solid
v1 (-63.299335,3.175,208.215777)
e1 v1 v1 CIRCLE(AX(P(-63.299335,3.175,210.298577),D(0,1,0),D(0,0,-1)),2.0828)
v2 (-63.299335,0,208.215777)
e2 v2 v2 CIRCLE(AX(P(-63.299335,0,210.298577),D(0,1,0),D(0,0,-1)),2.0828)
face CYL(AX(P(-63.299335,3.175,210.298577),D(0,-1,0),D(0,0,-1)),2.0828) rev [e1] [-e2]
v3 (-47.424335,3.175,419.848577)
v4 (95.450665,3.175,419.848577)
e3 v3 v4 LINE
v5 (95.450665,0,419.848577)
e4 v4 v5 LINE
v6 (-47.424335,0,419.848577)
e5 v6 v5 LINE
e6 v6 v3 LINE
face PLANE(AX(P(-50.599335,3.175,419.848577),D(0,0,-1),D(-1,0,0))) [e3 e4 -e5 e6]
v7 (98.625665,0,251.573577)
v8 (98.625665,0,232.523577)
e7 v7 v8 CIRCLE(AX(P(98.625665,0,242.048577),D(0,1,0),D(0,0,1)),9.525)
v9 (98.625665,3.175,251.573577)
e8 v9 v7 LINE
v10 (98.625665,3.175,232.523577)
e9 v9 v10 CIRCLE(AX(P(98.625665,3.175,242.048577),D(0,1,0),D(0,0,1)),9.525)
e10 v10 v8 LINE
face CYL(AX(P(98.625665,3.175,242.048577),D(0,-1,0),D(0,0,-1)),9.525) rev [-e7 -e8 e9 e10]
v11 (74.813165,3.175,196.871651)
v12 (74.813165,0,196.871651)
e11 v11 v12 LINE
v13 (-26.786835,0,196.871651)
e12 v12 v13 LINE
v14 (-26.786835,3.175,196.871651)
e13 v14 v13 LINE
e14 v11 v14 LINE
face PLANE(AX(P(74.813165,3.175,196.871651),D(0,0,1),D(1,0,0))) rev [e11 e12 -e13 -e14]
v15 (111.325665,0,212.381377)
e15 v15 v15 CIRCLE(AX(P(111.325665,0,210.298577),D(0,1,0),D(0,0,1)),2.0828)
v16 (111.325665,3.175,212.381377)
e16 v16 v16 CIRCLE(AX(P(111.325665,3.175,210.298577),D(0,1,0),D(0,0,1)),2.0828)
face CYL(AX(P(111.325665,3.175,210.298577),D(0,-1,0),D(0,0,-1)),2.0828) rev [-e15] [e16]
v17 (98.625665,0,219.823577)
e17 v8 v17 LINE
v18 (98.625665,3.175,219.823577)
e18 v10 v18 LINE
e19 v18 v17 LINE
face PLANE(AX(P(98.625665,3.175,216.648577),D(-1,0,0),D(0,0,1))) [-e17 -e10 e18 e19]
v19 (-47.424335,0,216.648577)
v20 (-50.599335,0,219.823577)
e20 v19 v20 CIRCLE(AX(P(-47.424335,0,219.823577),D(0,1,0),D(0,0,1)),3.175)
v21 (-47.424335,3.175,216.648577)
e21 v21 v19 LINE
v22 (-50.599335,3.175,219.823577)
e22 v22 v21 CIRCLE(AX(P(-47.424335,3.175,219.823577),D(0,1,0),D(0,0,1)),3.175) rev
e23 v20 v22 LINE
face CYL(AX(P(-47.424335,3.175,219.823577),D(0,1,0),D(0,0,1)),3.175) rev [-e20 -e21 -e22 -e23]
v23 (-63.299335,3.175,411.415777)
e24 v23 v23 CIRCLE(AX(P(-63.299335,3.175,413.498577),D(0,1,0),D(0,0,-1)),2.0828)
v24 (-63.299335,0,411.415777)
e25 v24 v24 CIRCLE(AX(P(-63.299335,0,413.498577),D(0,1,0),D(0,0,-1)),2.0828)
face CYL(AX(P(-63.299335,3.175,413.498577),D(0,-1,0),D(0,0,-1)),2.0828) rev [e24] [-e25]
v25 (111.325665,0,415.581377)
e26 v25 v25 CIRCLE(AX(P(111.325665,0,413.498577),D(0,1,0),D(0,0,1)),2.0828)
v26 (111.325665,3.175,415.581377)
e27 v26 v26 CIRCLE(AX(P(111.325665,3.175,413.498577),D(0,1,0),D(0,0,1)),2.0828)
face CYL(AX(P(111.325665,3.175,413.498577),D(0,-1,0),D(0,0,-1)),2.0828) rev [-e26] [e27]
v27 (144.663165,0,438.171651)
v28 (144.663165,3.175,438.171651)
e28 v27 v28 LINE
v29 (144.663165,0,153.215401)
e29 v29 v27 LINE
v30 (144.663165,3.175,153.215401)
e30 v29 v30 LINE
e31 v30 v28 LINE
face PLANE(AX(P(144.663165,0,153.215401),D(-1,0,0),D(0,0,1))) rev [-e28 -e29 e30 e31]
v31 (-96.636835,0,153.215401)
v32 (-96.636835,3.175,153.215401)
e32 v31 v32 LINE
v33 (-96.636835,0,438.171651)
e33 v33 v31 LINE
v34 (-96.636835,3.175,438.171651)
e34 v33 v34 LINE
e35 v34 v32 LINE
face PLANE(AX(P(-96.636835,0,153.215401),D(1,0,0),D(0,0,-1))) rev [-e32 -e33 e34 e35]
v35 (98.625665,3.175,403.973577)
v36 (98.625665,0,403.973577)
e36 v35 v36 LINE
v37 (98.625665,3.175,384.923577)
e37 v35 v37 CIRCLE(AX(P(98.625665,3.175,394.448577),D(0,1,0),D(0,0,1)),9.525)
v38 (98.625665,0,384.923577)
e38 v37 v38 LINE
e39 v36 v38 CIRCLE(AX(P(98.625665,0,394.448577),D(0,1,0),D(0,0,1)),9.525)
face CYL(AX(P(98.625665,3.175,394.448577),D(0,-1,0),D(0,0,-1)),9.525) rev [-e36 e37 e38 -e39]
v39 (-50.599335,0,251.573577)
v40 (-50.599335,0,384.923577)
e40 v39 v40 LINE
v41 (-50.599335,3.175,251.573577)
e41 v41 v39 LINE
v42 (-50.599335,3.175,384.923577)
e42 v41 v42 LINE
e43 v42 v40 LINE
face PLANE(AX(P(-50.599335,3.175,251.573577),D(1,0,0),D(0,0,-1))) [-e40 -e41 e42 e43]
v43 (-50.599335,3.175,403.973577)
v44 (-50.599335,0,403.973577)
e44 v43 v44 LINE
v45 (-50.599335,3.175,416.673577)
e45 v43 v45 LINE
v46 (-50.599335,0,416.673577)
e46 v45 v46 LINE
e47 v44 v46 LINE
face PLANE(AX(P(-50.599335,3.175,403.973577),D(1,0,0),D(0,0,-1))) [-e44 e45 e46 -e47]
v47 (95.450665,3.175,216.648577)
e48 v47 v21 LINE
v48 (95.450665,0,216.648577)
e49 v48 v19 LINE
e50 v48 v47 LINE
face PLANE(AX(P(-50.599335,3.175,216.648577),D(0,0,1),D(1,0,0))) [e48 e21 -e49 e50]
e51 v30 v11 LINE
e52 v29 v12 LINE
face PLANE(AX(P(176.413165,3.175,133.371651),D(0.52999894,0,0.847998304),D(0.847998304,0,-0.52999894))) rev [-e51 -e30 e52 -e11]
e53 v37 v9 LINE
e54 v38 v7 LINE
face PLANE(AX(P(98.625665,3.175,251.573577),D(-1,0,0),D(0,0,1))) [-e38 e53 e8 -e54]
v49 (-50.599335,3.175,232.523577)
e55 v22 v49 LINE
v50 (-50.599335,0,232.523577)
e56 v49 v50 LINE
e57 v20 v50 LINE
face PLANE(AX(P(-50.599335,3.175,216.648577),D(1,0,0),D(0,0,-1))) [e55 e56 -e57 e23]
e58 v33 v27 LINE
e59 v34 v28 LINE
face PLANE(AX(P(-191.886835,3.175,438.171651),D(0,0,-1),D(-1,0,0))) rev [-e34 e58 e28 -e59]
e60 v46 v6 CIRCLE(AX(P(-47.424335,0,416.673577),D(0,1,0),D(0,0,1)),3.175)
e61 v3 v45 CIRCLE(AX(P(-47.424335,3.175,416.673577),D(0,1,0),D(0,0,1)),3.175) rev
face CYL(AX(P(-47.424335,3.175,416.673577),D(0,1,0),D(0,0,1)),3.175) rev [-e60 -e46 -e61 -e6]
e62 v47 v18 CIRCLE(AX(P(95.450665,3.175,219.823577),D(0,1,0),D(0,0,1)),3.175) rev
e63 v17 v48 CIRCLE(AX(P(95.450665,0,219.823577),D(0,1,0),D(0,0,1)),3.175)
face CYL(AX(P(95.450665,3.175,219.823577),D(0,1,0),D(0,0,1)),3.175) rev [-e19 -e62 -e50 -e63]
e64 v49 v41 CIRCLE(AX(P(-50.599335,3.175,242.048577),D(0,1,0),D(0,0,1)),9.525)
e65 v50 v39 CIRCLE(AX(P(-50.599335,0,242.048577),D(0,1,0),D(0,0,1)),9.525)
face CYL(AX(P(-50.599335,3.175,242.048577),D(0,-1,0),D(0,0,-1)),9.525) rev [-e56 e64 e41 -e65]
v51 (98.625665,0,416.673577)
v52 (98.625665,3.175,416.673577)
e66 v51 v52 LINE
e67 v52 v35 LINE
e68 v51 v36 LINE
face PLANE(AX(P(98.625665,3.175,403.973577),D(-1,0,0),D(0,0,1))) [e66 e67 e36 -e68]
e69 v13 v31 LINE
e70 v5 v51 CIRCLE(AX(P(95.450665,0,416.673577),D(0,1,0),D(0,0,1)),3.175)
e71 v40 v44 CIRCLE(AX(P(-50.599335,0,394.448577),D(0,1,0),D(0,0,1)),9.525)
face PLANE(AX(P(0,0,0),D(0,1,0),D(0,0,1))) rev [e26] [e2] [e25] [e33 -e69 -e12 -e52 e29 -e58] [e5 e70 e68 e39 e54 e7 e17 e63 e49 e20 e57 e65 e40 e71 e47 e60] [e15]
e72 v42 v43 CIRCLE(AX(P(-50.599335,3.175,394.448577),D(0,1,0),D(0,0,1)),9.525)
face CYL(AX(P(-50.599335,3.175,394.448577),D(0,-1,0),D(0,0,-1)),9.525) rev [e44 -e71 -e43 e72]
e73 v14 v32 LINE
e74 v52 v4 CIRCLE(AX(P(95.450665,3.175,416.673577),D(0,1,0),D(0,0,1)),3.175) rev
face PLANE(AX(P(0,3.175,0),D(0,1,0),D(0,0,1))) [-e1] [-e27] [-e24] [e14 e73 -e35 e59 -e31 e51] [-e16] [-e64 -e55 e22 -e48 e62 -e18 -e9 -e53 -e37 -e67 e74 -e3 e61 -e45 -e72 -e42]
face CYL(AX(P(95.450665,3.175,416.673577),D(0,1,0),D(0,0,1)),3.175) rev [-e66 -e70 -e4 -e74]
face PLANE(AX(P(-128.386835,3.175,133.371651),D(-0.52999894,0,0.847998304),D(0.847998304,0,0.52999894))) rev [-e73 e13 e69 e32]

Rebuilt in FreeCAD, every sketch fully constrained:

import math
import FreeCAD as App
import Part
import Sketcher
Q = App.Units.Quantity


def edges_at(feature, points):
    """Names of the edges that pass closest to the given points."""
    edges = feature.Shape.Edges
    near = lambda p: min(range(len(edges)), key=lambda i: edges[i].distToShape(Part.Vertex(*p))[0])
    return sorted({f"Edge{near(p) + 1}" for p in points})

doc = App.newDocument("Part")
body = doc.addObject("PartDesign::Body", "Body")

# Sketch on XZ plane
sketch1 = body.newObject("Sketcher::SketchObject", "Sketch")
sketch1.AttachmentSupport = (doc.getObject("XZ_Plane"), [""])
sketch1.MapMode = "FlatFace"
sketch1.addGeometry([
    Part.LineSegment(App.Vector(-242.686835, 387.371651, 0), App.Vector(-191.886835, 438.171651, 0)),  # 0
    Part.LineSegment(App.Vector(-191.886835, 438.171651, 0), App.Vector(239.913165, 438.171651, 0)),  # 1
    Part.LineSegment(App.Vector(239.913165, 438.171651, 0), App.Vector(290.713165, 387.371651, 0)),  # 2
    Part.LineSegment(App.Vector(290.713165, 387.371651, 0), App.Vector(290.713165, 133.371651, 0)),  # 3
    Part.LineSegment(App.Vector(290.713165, 133.371651, 0), App.Vector(176.413165, 82.571651, 0)),  # 4
    Part.LineSegment(App.Vector(176.413165, 82.571651, 0), App.Vector(176.413165, 133.371651, 0)),  # 5
    Part.LineSegment(App.Vector(176.413165, 133.371651, 0), App.Vector(74.813165, 196.871651, 0)),  # 6
    Part.LineSegment(App.Vector(74.813165, 196.871651, 0), App.Vector(-26.786835, 196.871651, 0)),  # 7
    Part.LineSegment(App.Vector(-26.786835, 196.871651, 0), App.Vector(-128.386835, 133.371651, 0)),  # 8
    Part.LineSegment(App.Vector(-128.386835, 133.371651, 0), App.Vector(-128.386835, 82.571651, 0)),  # 9
    Part.LineSegment(App.Vector(-128.386835, 82.571651, 0), App.Vector(-242.686835, 133.371651, 0)),  # 10
    Part.LineSegment(App.Vector(-242.686835, 133.371651, 0), App.Vector(-242.686835, 387.371651, 0)),  # 11
    Part.LineSegment(App.Vector(-153.786835, 339.050209, 0), App.Vector(-217.286835, 339.050209, 0)),  # 12
    Part.LineSegment(App.Vector(-217.286835, 339.050209, 0), App.Vector(-217.286835, 148.550209, 0)),  # 13
    Part.LineSegment(App.Vector(-217.286835, 148.550209, 0), App.Vector(-153.786835, 148.550209, 0)),  # 14
    Part.LineSegment(App.Vector(-153.786835, 148.550209, 0), App.Vector(-153.786835, 339.050209, 0)),  # 15
    Part.LineSegment(App.Vector(265.313165, 339.050209, 0), App.Vector(201.813165, 339.050209, 0)),  # 16
    Part.LineSegment(App.Vector(201.813165, 339.050209, 0), App.Vector(201.813165, 148.550209, 0)),  # 17
    Part.LineSegment(App.Vector(201.813165, 148.550209, 0), App.Vector(265.313165, 148.550209, 0)),  # 18
    Part.LineSegment(App.Vector(265.313165, 148.550209, 0), App.Vector(265.313165, 339.050209, 0)),  # 19
], False)
sketch1.addConstraint([
    Sketcher.Constraint("Coincident", 0, 2, 1, 1),
    Sketcher.Constraint("Coincident", 1, 2, 2, 1),
    Sketcher.Constraint("Coincident", 2, 2, 3, 1),
    Sketcher.Constraint("Coincident", 3, 2, 4, 1),
    Sketcher.Constraint("Coincident", 4, 2, 5, 1),
    Sketcher.Constraint("Coincident", 5, 2, 6, 1),
    Sketcher.Constraint("Coincident", 6, 2, 7, 1),
    Sketcher.Constraint("Coincident", 7, 2, 8, 1),
    Sketcher.Constraint("Coincident", 8, 2, 9, 1),
    Sketcher.Constraint("Coincident", 9, 2, 10, 1),
    Sketcher.Constraint("Coincident", 10, 2, 11, 1),
    Sketcher.Constraint("Coincident", 11, 2, 0, 1),
    Sketcher.Constraint("Coincident", 12, 2, 13, 1),
    Sketcher.Constraint("Coincident", 13, 2, 14, 1),
    Sketcher.Constraint("Coincident", 14, 2, 15, 1),
    Sketcher.Constraint("Coincident", 15, 2, 12, 1),
    Sketcher.Constraint("Coincident", 16, 2, 17, 1),
    Sketcher.Constraint("Coincident", 17, 2, 18, 1),
    Sketcher.Constraint("Coincident", 18, 2, 19, 1),
    Sketcher.Constraint("Coincident", 19, 2, 16, 1),
    Sketcher.Constraint("Horizontal", 1),
    Sketcher.Constraint("Vertical", 3),
    Sketcher.Constraint("Vertical", 5),
    Sketcher.Constraint("Horizontal", 7),
    Sketcher.Constraint("Vertical", 9),
    Sketcher.Constraint("Vertical", 11),
    Sketcher.Constraint("Horizontal", 12),
    Sketcher.Constraint("Vertical", 13),
    Sketcher.Constraint("Horizontal", 14),
    Sketcher.Constraint("Vertical", 15),
    Sketcher.Constraint("Horizontal", 16),
    Sketcher.Constraint("Vertical", 17),
    Sketcher.Constraint("Horizontal", 18),
    Sketcher.Constraint("Vertical", 19),
    Sketcher.Constraint("Perpendicular", 0, 2),
    Sketcher.Constraint("Horizontal", 3, 2, 5, 2),
    Sketcher.Constraint("Horizontal", 5, 2, 8, 2),
    Sketcher.Constraint("Horizontal", 4, 2, 9, 2),
    Sketcher.Constraint("Horizontal", 8, 2, 10, 2),
    Sketcher.Constraint("Horizontal", 2, 2, 11, 2),
    Sketcher.Constraint("Horizontal", 15, 2, 16, 2),
    Sketcher.Constraint("Horizontal", 14, 2, 17, 2),
    Sketcher.Constraint("Equal", 14, 16),
    Sketcher.Constraint("Equal", 0, 2),
    Sketcher.Constraint("Equal", 6, 8),
    Sketcher.Constraint("Equal", 4, 10),
    Sketcher.Constraint("DistanceX", 1, 1, 1, 2, Q("17 in")),
    Sketcher.Constraint("DistanceX", 7, 2, 7, 1, Q("4 in")),
    Sketcher.Constraint("DistanceY", 3, 2, 3, 1, Q("10 in")),
    Sketcher.Constraint("DistanceY", 5, 1, 5, 2, Q("2 in")),
    Sketcher.Constraint("DistanceX", 12, 2, 12, 1, Q("2.5 in")),
    Sketcher.Constraint("DistanceY", 13, 2, 13, 1, Q("7.5 in")),
    Sketcher.Constraint("DistanceX", 1, 2, 2, 2, Q("2 in")),
    Sketcher.Constraint("DistanceX", 6, 2, 5, 2, Q("4 in")),
    Sketcher.Constraint("DistanceX", 11, 2, 12, 2, Q("1 in")),
    Sketcher.Constraint("DistanceX", 6, 2, 16, 2, Q("5 in")),
    Sketcher.Constraint("DistanceY", 5, 2, 6, 2, Q("2.5 in")),
    Sketcher.Constraint("DistanceX", 0, 2, -1, 1, Q("7.5545998 in")),
    Sketcher.Constraint("DistanceY", -1, 1, 0, 2, 438.171651),
    Sketcher.Constraint("DistanceY", -1, 1, 12, 2, 339.050209),
])
pad1 = body.newObject("PartDesign::Pad", "Pad")
pad1.Profile = sketch1
pad1.Length = Q("0.125 in")
pad1.Reversed = True

# Sketch on XZ plane
sketch2 = body.newObject("Sketcher::SketchObject", "Sketch001")
sketch2.AttachmentSupport = (doc.getObject("XZ_Plane"), [""])
sketch2.MapMode = "FlatFace"
sketch2.addGeometry([
    Part.Circle(App.Vector(-114.278235, 270.125471, 0), App.Vector(0, 0, 1), 2.0828),  # 0
    Part.Circle(App.Vector(-143.449035, 284.135409, 0), App.Vector(0, 0, 1), 2.0828),  # 1
    Part.Circle(App.Vector(-114.278235, 217.474948, 0), App.Vector(0, 0, 1), 2.0828),  # 2
    Part.Circle(App.Vector(-143.449035, 203.465009, 0), App.Vector(0, 0, 1), 2.0828),  # 3
    Part.Circle(App.Vector(191.475365, 284.135409, 0), App.Vector(0, 0, 1), 2.0828),  # 4
    Part.Circle(App.Vector(162.304565, 270.125471, 0), App.Vector(0, 0, 1), 2.0828),  # 5
    Part.Circle(App.Vector(162.304565, 217.474948, 0), App.Vector(0, 0, 1), 2.0828),  # 6
    Part.Circle(App.Vector(191.475365, 203.465009, 0), App.Vector(0, 0, 1), 2.0828),  # 7
], False)
sketch2.addConstraint([
    Sketcher.Constraint("Equal", 0, 1),
    Sketcher.Constraint("Equal", 1, 2),
    Sketcher.Constraint("Equal", 2, 3),
    Sketcher.Constraint("Equal", 3, 4),
    Sketcher.Constraint("Equal", 4, 5),
    Sketcher.Constraint("Equal", 5, 6),
    Sketcher.Constraint("Equal", 6, 7),
    Sketcher.Constraint("Horizontal", 1, 3, 4, 3),
    Sketcher.Constraint("Horizontal", 0, 3, 5, 3),
    Sketcher.Constraint("Horizontal", 2, 3, 6, 3),
    Sketcher.Constraint("Horizontal", 3, 3, 7, 3),
    Sketcher.Constraint("Vertical", 0, 3, 2, 3),
    Sketcher.Constraint("Vertical", 1, 3, 3, 3),
    Sketcher.Constraint("Vertical", 5, 3, 6, 3),
    Sketcher.Constraint("Vertical", 4, 3, 7, 3),
    Sketcher.Constraint("Diameter", 0, Q("0.164 in")),
    Sketcher.Constraint("DistanceY", 3, 3, 1, 3, Q("3.176 in")),
    Sketcher.Constraint("DistanceX", 1, 3, 4, 3, Q("13.186 in")),
    Sketcher.Constraint("DistanceX", 1, 3, -1, 1, Q("5.6475998 in")),
    Sketcher.Constraint("DistanceX", 1, 3, 0, 3, 29.1708),
    Sketcher.Constraint("DistanceX", 5, 3, 4, 3, 29.1708),
    Sketcher.Constraint("DistanceY", -1, 1, 0, 3, 270.125471),
    Sketcher.Constraint("DistanceY", -1, 1, 1, 3, 284.135409),
    Sketcher.Constraint("DistanceY", 2, 3, 1, 3, 66.660462),
])
pocket1 = body.newObject("PartDesign::Pocket", "Pocket")
pocket1.Profile = sketch2
pocket1.Type = "ThroughAll"

# Sketch on XZ plane
sketch3 = body.newObject("Sketcher::SketchObject", "Sketch002")
sketch3.AttachmentSupport = (doc.getObject("XZ_Plane"), [""])
sketch3.MapMode = "FlatFace"
sketch3.addGeometry([
    Part.Circle(App.Vector(111.325665, 210.298577, 0), App.Vector(0, 0, 1), 2.0828),  # 0
    Part.Circle(App.Vector(111.325665, 413.498577, 0), App.Vector(0, 0, 1), 2.0828),  # 1
    Part.Circle(App.Vector(-63.299335, 413.498577, 0), App.Vector(0, 0, 1), 2.0828),  # 2
    Part.Circle(App.Vector(-63.299335, 210.298577, 0), App.Vector(0, 0, 1), 2.0828),  # 3
    Part.LineSegment(App.Vector(98.625665, 216.648577, 0), App.Vector(-50.599335, 216.648577, 0)),  # 4
    Part.LineSegment(App.Vector(-50.599335, 216.648577, 0), App.Vector(-50.599335, 232.523577, 0)),  # 5
    Part.ArcOfCircle(Part.Circle(App.Vector(-50.599335, 242.048577, 0), App.Vector(0, 0, 1), 9.525), math.radians(90), math.radians(270)),  # 6
    Part.LineSegment(App.Vector(-50.599335, 251.573577, 0), App.Vector(-50.599335, 384.923577, 0)),  # 7
    Part.ArcOfCircle(Part.Circle(App.Vector(-50.599335, 394.448577, 0), App.Vector(0, 0, 1), 9.525), math.radians(90), math.radians(270)),  # 8
    Part.LineSegment(App.Vector(-50.599335, 403.973577, 0), App.Vector(-50.599335, 419.848577, 0)),  # 9
    Part.LineSegment(App.Vector(-50.599335, 419.848577, 0), App.Vector(98.625665, 419.848577, 0)),  # 10
    Part.LineSegment(App.Vector(98.625665, 419.848577, 0), App.Vector(98.625665, 403.973577, 0)),  # 11
    Part.ArcOfCircle(Part.Circle(App.Vector(98.625665, 394.448577, 0), App.Vector(0, 0, 1), 9.525), math.radians(-90), math.radians(90)),  # 12
    Part.LineSegment(App.Vector(98.625665, 384.923577, 0), App.Vector(98.625665, 251.573577, 0)),  # 13
    Part.ArcOfCircle(Part.Circle(App.Vector(98.625665, 242.048577, 0), App.Vector(0, 0, 1), 9.525), math.radians(-90), math.radians(90)),  # 14
    Part.LineSegment(App.Vector(98.625665, 232.523577, 0), App.Vector(98.625665, 216.648577, 0)),  # 15
], False)
sketch3.addConstraint([
    Sketcher.Constraint("Coincident", 4, 2, 5, 1),
    Sketcher.Constraint("Coincident", 5, 2, 6, 2),
    Sketcher.Constraint("Coincident", 6, 1, 7, 1),
    Sketcher.Constraint("Coincident", 7, 2, 8, 2),
    Sketcher.Constraint("Coincident", 8, 1, 9, 1),
    Sketcher.Constraint("Coincident", 9, 2, 10, 1),
    Sketcher.Constraint("Coincident", 10, 2, 11, 1),
    Sketcher.Constraint("Coincident", 11, 2, 12, 2),
    Sketcher.Constraint("Coincident", 12, 1, 13, 1),
    Sketcher.Constraint("Coincident", 13, 2, 14, 2),
    Sketcher.Constraint("Coincident", 14, 1, 15, 1),
    Sketcher.Constraint("Coincident", 15, 2, 4, 1),
    Sketcher.Constraint("Horizontal", 4),
    Sketcher.Constraint("Vertical", 5),
    Sketcher.Constraint("Vertical", 7),
    Sketcher.Constraint("Vertical", 9),
    Sketcher.Constraint("Horizontal", 10),
    Sketcher.Constraint("Vertical", 11),
    Sketcher.Constraint("Vertical", 13),
    Sketcher.Constraint("Vertical", 15),
    Sketcher.Constraint("Equal", 0, 1),
    Sketcher.Constraint("Equal", 1, 2),
    Sketcher.Constraint("Equal", 2, 3),
    Sketcher.Constraint("Equal", 6, 8),
    Sketcher.Constraint("Equal", 8, 12),
    Sketcher.Constraint("Equal", 12, 14),
    Sketcher.Constraint("Horizontal", 1, 3, 2, 3),
    Sketcher.Constraint("Horizontal", 0, 3, 3, 3),
    Sketcher.Constraint("Horizontal", 8, 3, 12, 3),
    Sketcher.Constraint("Horizontal", 6, 3, 14, 3),
    Sketcher.Constraint("Vertical", 0, 3, 1, 3),
    Sketcher.Constraint("Vertical", 2, 3, 3, 3),
    Sketcher.Constraint("Vertical", 6, 3, 8, 3),
    Sketcher.Constraint("Vertical", 12, 3, 14, 3),
    Sketcher.Constraint("Vertical", 8, 3, 4, 2),
    Sketcher.Constraint("Vertical", 5, 2, 6, 1),
    Sketcher.Constraint("Vertical", 7, 2, 8, 1),
    Sketcher.Constraint("Vertical", 14, 3, 10, 2),
    Sketcher.Constraint("Vertical", 11, 2, 12, 1),
    Sketcher.Constraint("Vertical", 13, 2, 14, 1),
    Sketcher.Constraint("Equal", 5, 9),
    Sketcher.Constraint("Diameter", 0, Q("0.164 in")),
    Sketcher.Constraint("Radius", 6, Q("0.375 in")),
    Sketcher.Constraint("DistanceY", 0, 3, 1, 3, Q("8 in")),
    Sketcher.Constraint("DistanceY", 6, 3, 8, 3, Q("6 in")),
    Sketcher.Constraint("DistanceY", 4, 2, 6, 3, Q("1 in")),
    Sketcher.Constraint("DistanceX", 3, 3, 6, 3, Q("0.5 in")),
    Sketcher.Constraint("DistanceX", 12, 3, 1, 3, Q("0.5 in")),
    Sketcher.Constraint("DistanceX", 4, 2, 4, 1, Q("5.875 in")),
    Sketcher.Constraint("DistanceY", 3, 3, 6, 3, Q("1.25 in")),
    Sketcher.Constraint("DistanceX", -1, 1, 0, 3, Q("4.3829002 in")),
    Sketcher.Constraint("DistanceY", -1, 1, 0, 3, 210.298577),
])
pocket2 = body.newObject("PartDesign::Pocket", "Pocket001")
pocket2.Profile = sketch3
pocket2.Type = "ThroughAll"
doc.recompute()

fillet = body.newObject("PartDesign::Fillet", "Fillet")
fillet.Base = (pocket2, edges_at(pocket2, [
    (98.626, 1.587, 419.849),
    (98.626, 1.587, 216.649),
    (-50.599, 1.587, 216.649),
    (-50.599, 1.587, 419.849),
]))
fillet.Radius = Q("0.125 in")

# Sketch on XZ plane
sketch4 = body.newObject("Sketcher::SketchObject", "Sketch003")
sketch4.AttachmentSupport = (doc.getObject("XZ_Plane"), [""])
sketch4.MapMode = "FlatFace"
sketch4.AttachmentOffset = App.Placement(App.Vector(0, 0, -0.125 * 25.4), App.Rotation())
sketch4.addGeometry([
    Part.LineSegment(App.Vector(-191.886835, 438.171651, 0), App.Vector(-96.636835, 438.171651, 0)),  # 0
    Part.LineSegment(App.Vector(-96.636835, 438.171651, 0), App.Vector(-96.636835, 153.215401, 0)),  # 1
    Part.LineSegment(App.Vector(-96.636835, 153.215401, 0), App.Vector(-128.386835, 133.371651, 0)),  # 2
    Part.LineSegment(App.Vector(-128.386835, 133.371651, 0), App.Vector(-128.386835, 82.571651, 0)),  # 3
    Part.LineSegment(App.Vector(-128.386835, 82.571651, 0), App.Vector(-242.686835, 133.371651, 0)),  # 4
    Part.LineSegment(App.Vector(-242.686835, 133.371651, 0), App.Vector(-242.686835, 387.371651, 0)),  # 5
    Part.LineSegment(App.Vector(-242.686835, 387.371651, 0), App.Vector(-191.886835, 438.171651, 0)),  # 6
    Part.LineSegment(App.Vector(176.413165, 133.371651, 0), App.Vector(144.663165, 153.215401, 0)),  # 7
    Part.LineSegment(App.Vector(144.663165, 153.215401, 0), App.Vector(144.663165, 438.171651, 0)),  # 8
    Part.LineSegment(App.Vector(144.663165, 438.171651, 0), App.Vector(239.913165, 438.171651, 0)),  # 9
    Part.LineSegment(App.Vector(239.913165, 438.171651, 0), App.Vector(290.713165, 387.371651, 0)),  # 10
    Part.LineSegment(App.Vector(290.713165, 387.371651, 0), App.Vector(290.713165, 133.371651, 0)),  # 11
    Part.LineSegment(App.Vector(290.713165, 133.371651, 0), App.Vector(176.413165, 82.571651, 0)),  # 12
    Part.LineSegment(App.Vector(176.413165, 82.571651, 0), App.Vector(176.413165, 133.371651, 0)),  # 13
], False)
sketch4.addConstraint([
    Sketcher.Constraint("Coincident", 0, 2, 1, 1),
    Sketcher.Constraint("Coincident", 1, 2, 2, 1),
    Sketcher.Constraint("Coincident", 2, 2, 3, 1),
    Sketcher.Constraint("Coincident", 3, 2, 4, 1),
    Sketcher.Constraint("Coincident", 4, 2, 5, 1),
    Sketcher.Constraint("Coincident", 5, 2, 6, 1),
    Sketcher.Constraint("Coincident", 6, 2, 0, 1),
    Sketcher.Constraint("Coincident", 7, 2, 8, 1),
    Sketcher.Constraint("Coincident", 8, 2, 9, 1),
    Sketcher.Constraint("Coincident", 9, 2, 10, 1),
    Sketcher.Constraint("Coincident", 10, 2, 11, 1),
    Sketcher.Constraint("Coincident", 11, 2, 12, 1),
    Sketcher.Constraint("Coincident", 12, 2, 13, 1),
    Sketcher.Constraint("Coincident", 13, 2, 7, 1),
    Sketcher.Constraint("Horizontal", 0),
    Sketcher.Constraint("Vertical", 1),
    Sketcher.Constraint("Vertical", 3),
    Sketcher.Constraint("Vertical", 5),
    Sketcher.Constraint("Vertical", 8),
    Sketcher.Constraint("Horizontal", 9),
    Sketcher.Constraint("Vertical", 11),
    Sketcher.Constraint("Vertical", 13),
    Sketcher.Constraint("Perpendicular", 6, 10),
    Sketcher.Constraint("Horizontal", 2, 2, 4, 2),
    Sketcher.Constraint("Horizontal", 1, 2, 7, 2),
    Sketcher.Constraint("Horizontal", 6, 2, 8, 2),
    Sketcher.Constraint("Horizontal", 5, 2, 10, 2),
    Sketcher.Constraint("Horizontal", 4, 2, 11, 2),
    Sketcher.Constraint("Horizontal", 3, 2, 12, 2),
    Sketcher.Constraint("Horizontal", 11, 2, 13, 2),
    Sketcher.Constraint("Equal", 0, 9),
    Sketcher.Constraint("Equal", 2, 7),
    Sketcher.Constraint("Equal", 6, 10),
    Sketcher.Constraint("DistanceY", 3, 2, 3, 1, Q("2 in")),
    Sketcher.Constraint("DistanceY", 5, 1, 5, 2, Q("10 in")),
    Sketcher.Constraint("DistanceY", 2, 2, 0, 2, Q("12 in")),
    Sketcher.Constraint("DistanceX", 6, 2, 9, 2, Q("17 in")),
    Sketcher.Constraint("DistanceX", 3, 2, 12, 2, Q("12 in")),
    Sketcher.Constraint("DistanceX", 0, 1, 0, 2, Q("3.75 in")),
    Sketcher.Constraint("DistanceY", 1, 2, 1, 1, Q("11.21875 in")),
    Sketcher.Constraint("DistanceX", 0, 2, -1, 1, Q("3.8045998 in")),
    Sketcher.Constraint("DistanceY", -1, 1, 1, 2, 153.215401),
])
pocket3 = body.newObject("PartDesign::Pocket", "Pocket002")
pocket3.Profile = sketch4
pocket3.Type = "ThroughAll"
pocket3.Reversed = True

doc.recompute()
